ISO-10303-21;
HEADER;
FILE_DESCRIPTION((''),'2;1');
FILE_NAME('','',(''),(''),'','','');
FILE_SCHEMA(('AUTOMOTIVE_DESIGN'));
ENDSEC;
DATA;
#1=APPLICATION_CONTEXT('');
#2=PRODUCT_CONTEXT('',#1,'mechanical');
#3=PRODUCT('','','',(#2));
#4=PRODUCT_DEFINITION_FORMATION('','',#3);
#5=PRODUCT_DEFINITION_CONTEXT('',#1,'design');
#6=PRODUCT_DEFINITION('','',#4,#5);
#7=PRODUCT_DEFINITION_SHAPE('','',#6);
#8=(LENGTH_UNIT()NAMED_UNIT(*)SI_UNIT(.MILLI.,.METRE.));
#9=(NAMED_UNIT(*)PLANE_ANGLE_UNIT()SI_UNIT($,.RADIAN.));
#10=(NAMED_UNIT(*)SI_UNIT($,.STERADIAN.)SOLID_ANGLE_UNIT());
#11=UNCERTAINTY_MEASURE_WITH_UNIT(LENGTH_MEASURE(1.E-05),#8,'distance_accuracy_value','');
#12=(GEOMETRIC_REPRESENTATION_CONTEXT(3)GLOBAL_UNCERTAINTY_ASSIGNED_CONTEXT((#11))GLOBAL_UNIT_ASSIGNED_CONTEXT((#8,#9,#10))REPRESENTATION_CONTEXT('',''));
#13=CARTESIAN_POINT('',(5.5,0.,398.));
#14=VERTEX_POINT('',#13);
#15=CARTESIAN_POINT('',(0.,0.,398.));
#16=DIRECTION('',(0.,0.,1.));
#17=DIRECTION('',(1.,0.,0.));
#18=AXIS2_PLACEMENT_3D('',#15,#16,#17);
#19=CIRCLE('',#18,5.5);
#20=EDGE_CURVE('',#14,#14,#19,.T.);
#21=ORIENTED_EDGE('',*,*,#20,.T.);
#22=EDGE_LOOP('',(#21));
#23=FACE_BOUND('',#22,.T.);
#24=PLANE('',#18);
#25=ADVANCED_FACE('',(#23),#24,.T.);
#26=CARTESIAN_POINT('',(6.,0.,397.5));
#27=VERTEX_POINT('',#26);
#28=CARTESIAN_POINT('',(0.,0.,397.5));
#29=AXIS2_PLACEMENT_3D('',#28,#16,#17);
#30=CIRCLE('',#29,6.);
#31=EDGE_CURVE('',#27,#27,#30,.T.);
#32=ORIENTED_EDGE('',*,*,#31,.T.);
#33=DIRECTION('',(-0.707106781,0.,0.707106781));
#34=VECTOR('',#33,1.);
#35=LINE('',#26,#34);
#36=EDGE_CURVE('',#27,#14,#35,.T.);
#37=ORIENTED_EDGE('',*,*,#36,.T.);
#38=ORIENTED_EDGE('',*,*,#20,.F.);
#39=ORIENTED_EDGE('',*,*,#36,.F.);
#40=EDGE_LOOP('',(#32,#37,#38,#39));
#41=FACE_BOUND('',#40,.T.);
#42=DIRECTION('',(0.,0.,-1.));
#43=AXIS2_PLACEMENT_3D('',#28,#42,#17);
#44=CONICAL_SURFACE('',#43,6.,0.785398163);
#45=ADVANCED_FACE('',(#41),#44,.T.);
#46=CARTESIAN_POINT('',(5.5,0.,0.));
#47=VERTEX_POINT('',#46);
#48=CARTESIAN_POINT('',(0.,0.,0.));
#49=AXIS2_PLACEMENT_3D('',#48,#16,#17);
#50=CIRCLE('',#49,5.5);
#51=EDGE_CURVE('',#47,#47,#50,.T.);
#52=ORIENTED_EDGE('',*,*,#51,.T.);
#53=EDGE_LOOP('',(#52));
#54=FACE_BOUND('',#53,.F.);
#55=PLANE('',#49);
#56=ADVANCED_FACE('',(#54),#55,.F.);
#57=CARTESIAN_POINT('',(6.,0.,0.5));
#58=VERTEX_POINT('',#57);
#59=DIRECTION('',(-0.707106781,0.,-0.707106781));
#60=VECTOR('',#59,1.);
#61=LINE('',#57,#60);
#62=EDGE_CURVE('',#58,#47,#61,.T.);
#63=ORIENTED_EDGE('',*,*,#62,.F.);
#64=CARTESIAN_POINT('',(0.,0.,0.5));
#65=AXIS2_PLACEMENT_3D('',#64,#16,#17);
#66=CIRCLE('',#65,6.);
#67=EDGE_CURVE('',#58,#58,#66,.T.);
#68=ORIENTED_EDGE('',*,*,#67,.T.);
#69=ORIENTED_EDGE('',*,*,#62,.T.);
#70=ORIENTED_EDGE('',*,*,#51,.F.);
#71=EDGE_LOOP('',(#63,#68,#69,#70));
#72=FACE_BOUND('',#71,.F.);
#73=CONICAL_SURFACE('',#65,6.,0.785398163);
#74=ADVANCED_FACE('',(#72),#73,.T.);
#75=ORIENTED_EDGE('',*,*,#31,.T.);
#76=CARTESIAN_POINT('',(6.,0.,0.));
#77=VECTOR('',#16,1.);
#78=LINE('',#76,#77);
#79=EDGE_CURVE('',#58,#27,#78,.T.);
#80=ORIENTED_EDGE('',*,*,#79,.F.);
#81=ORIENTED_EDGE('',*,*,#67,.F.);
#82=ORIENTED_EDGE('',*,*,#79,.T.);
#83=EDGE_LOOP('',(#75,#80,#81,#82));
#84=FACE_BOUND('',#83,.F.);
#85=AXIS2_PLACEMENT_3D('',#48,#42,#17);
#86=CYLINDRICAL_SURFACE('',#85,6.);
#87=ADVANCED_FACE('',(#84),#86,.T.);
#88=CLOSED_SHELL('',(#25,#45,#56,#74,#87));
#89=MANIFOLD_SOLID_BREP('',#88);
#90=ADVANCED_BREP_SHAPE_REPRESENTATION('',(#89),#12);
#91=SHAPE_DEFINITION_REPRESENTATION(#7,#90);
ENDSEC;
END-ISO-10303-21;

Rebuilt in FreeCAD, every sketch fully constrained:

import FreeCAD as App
import Part
import Sketcher

V = App.Vector
Q = App.Units.Quantity


def edges_at(feature, points):
    """Names of the edges that pass closest to the given points."""
    edges = feature.Shape.Edges
    near = lambda p: min(range(len(edges)), key=lambda i: edges[i].distToShape(Part.Vertex(*p))[0])
    return sorted({f"Edge{near(p) + 1}" for p in points})

doc = App.newDocument("Part")
body = doc.addObject("PartDesign::Body", "Body")

# Sketch on XY plane
sketch1 = body.newObject("Sketcher::SketchObject", "Sketch")
sketch1.AttachmentSupport = (doc.getObject("XY_Plane"), [""])
sketch1.MapMode = "FlatFace"
sketch1.addGeometry(Part.Circle(V(0, 0, 0), V(0, 0, 1), 6), False)
sketch1.addConstraint([
    Sketcher.Constraint("Coincident", 0, 3, -1, 1),
    Sketcher.Constraint("Diameter", 0, Q("12 mm")),
])
pad1 = body.newObject("PartDesign::Pad", "Pad")
pad1.Profile = sketch1
pad1.Length = 398
doc.recompute()

chamfer = body.newObject("PartDesign::Chamfer", "Chamfer")
chamfer.Base = (pad1, edges_at(pad1, [(-6, 0, 0), (-6, 0, 398)]))
chamfer.Size = 0.5

doc.recompute()
